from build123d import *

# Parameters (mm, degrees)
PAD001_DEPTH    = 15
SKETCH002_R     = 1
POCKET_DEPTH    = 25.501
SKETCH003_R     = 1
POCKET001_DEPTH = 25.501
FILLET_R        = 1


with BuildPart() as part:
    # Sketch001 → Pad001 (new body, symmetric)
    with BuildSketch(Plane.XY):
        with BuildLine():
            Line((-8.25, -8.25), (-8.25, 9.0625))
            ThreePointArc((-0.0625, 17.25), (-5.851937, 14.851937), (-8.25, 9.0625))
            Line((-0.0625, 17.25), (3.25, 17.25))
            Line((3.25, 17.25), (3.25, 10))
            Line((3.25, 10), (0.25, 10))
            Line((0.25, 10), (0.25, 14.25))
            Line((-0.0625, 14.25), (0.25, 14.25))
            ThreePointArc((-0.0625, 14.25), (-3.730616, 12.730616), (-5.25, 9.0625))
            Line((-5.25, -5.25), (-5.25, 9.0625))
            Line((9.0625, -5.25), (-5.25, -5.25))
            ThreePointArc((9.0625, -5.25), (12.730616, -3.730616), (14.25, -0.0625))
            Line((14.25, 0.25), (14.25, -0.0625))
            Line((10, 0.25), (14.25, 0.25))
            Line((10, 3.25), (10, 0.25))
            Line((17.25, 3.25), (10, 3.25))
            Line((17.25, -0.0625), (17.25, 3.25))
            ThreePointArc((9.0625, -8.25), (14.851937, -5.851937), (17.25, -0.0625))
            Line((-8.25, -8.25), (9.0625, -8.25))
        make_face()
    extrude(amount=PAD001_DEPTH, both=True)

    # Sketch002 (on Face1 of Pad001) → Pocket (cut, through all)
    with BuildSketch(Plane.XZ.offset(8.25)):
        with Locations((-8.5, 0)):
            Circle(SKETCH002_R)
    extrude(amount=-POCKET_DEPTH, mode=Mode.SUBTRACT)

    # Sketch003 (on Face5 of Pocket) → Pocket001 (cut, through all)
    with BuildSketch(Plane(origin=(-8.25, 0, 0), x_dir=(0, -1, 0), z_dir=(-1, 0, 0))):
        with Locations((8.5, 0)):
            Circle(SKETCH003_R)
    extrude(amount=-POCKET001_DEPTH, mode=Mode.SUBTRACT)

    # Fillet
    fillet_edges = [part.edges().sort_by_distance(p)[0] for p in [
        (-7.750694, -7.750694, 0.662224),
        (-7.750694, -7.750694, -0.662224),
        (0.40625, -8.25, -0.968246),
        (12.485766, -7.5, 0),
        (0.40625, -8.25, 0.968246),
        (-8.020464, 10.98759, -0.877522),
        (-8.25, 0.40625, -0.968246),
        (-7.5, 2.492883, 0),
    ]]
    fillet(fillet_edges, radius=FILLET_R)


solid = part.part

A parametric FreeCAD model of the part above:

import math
import FreeCAD as App
import Part
import Sketcher

V = App.Vector


def edges_at(feature, points):
    """Names of the edges that pass closest to the given points."""
    edges = feature.Shape.Edges
    near = lambda p: min(range(len(edges)), key=lambda i: edges[i].distToShape(Part.Vertex(*p))[0])
    return sorted({f"Edge{near(p) + 1}" for p in points})

doc = App.newDocument("Part")
params = doc.addObject("Spreadsheet::Sheet", "Params")
for row, (alias, value) in enumerate([
    ("sketch1_width", "3 mm"),
    ("sketch1_width2", "7.25 mm"),
    ("pad1_length", "30 mm"),
    ("sketch2_diameter", "2 mm"),
    ("sketch3_diameter", "2 mm"),
    ("fillet_radius", "1 mm"),
], start=1):
    params.set(f"A{row}", alias)
    params.set(f"B{row}", "=" + value)
    params.setAlias(f"B{row}", alias)

body = doc.addObject("PartDesign::Body", "Body")

sketch1 = body.newObject("Sketcher::SketchObject", "Sketch")
sketch1.AttachmentSupport = (doc.getObject("XY_Plane"), [""])
sketch1.MapMode = "FlatFace"
sketch1.addGeometry(Part.LineSegment(V(-8.25, 9.06, 0), V(-8.25, -8.25, 0)), False)
sketch1.addGeometry(Part.LineSegment(V(-8.25, -8.25, 0), V(9.06, -8.25, 0)), False)
sketch1.addGeometry(Part.ArcOfCircle(Part.Circle(V(9.06, -0.06, 0), V(0, 0, 1), 8.19), math.radians(-90), math.radians(0)), False)
sketch1.addGeometry(Part.LineSegment(V(17.25, -0.06, 0), V(17.25, 3.25, 0)), False)
sketch1.addGeometry(Part.LineSegment(V(17.25, 3.25, 0), V(10, 3.25, 0)), False)
sketch1.addGeometry(Part.LineSegment(V(10, 3.25, 0), V(10, 0.25, 0)), False)
sketch1.addGeometry(Part.LineSegment(V(10, 0.25, 0), V(14.25, 0.25, 0)), False)
sketch1.addGeometry(Part.LineSegment(V(14.25, 0.25, 0), V(14.25, -0.06, 0)), False)
sketch1.addGeometry(Part.ArcOfCircle(Part.Circle(V(9.06, -0.06, 0), V(0, 0, 1), 5.19), math.radians(-90), math.radians(0)), False)
sketch1.addGeometry(Part.LineSegment(V(9.06, -5.25, 0), V(-5.25, -5.25, 0)), False)
sketch1.addGeometry(Part.LineSegment(V(-5.25, -5.25, 0), V(-5.25, 9.06, 0)), False)
sketch1.addGeometry(Part.ArcOfCircle(Part.Circle(V(-0.06, 9.06, 0), V(0, 0, 1), 5.19), math.radians(90), math.radians(180)), False)
sketch1.addGeometry(Part.LineSegment(V(-0.06, 14.25, 0), V(0.25, 14.25, 0)), False)
sketch1.addGeometry(Part.LineSegment(V(0.25, 14.25, 0), V(0.25, 10, 0)), False)
sketch1.addGeometry(Part.LineSegment(V(0.25, 10, 0), V(3.25, 10, 0)), False)
sketch1.addGeometry(Part.LineSegment(V(3.25, 10, 0), V(3.25, 17.25, 0)), False)
sketch1.addGeometry(Part.LineSegment(V(3.25, 17.25, 0), V(-0.06, 17.25, 0)), False)
sketch1.addGeometry(Part.ArcOfCircle(Part.Circle(V(-0.06, 9.06, 0), V(0, 0, 1), 8.19), math.radians(90), math.radians(180)), False)
sketch1.addConstraint(Sketcher.Constraint("Coincident", 0, 2, 1, 1))
sketch1.addConstraint(Sketcher.Constraint("Tangent", 1, 2, 2, 1))
sketch1.addConstraint(Sketcher.Constraint("Tangent", 2, 2, 3, 1))
sketch1.addConstraint(Sketcher.Constraint("Coincident", 3, 2, 4, 1))
sketch1.addConstraint(Sketcher.Constraint("Coincident", 4, 2, 5, 1))
sketch1.addConstraint(Sketcher.Constraint("Coincident", 5, 2, 6, 1))
sketch1.addConstraint(Sketcher.Constraint("Coincident", 6, 2, 7, 1))
sketch1.addConstraint(Sketcher.Constraint("Tangent", 7, 2, 8, 2))
sketch1.addConstraint(Sketcher.Constraint("Tangent", 8, 1, 9, 1))
sketch1.addConstraint(Sketcher.Constraint("Coincident", 9, 2, 10, 1))
sketch1.addConstraint(Sketcher.Constraint("Tangent", 10, 2, 11, 2))
sketch1.addConstraint(Sketcher.Constraint("Tangent", 11, 1, 12, 1))
sketch1.addConstraint(Sketcher.Constraint("Coincident", 12, 2, 13, 1))
sketch1.addConstraint(Sketcher.Constraint("Coincident", 13, 2, 14, 1))
sketch1.addConstraint(Sketcher.Constraint("Coincident", 14, 2, 15, 1))
sketch1.addConstraint(Sketcher.Constraint("Coincident", 15, 2, 16, 1))
sketch1.addConstraint(Sketcher.Constraint("Tangent", 16, 2, 17, 1))
sketch1.addConstraint(Sketcher.Constraint("Tangent", 17, 2, 0, 1))
sketch1.addConstraint(Sketcher.Constraint("Vertical", 0))
sketch1.addConstraint(Sketcher.Constraint("Horizontal", 1))
sketch1.addConstraint(Sketcher.Constraint("Vertical", 3))
sketch1.addConstraint(Sketcher.Constraint("Horizontal", 4))
sketch1.addConstraint(Sketcher.Constraint("Vertical", 5))
sketch1.addConstraint(Sketcher.Constraint("Horizontal", 6))
sketch1.addConstraint(Sketcher.Constraint("Vertical", 7))
sketch1.addConstraint(Sketcher.Constraint("Horizontal", 9))
sketch1.addConstraint(Sketcher.Constraint("Vertical", 10))
sketch1.addConstraint(Sketcher.Constraint("Horizontal", 12))
sketch1.addConstraint(Sketcher.Constraint("Vertical", 13))
sketch1.addConstraint(Sketcher.Constraint("Horizontal", 14))
sketch1.addConstraint(Sketcher.Constraint("Vertical", 15))
sketch1.addConstraint(Sketcher.Constraint("Horizontal", 16))
sketch1.addConstraint(Sketcher.Constraint("Coincident", 8, 3, 2, 3))
sketch1.addConstraint(Sketcher.Constraint("Coincident", 17, 3, 11, 3))
sketch1.addConstraint(Sketcher.Constraint("Equal", 8, 11))
sketch1.addConstraint(Sketcher.Constraint("Equal", 2, 17))
sketch1.addConstraint(Sketcher.Constraint("Equal", 1, 0))
sketch1.addConstraint(Sketcher.Constraint("Equal", 16, 3))
sketch1.addConstraint(Sketcher.Constraint("Equal", 14, 5))
sketch1.addConstraint(Sketcher.Constraint("Equal", 6, 13))
sketch1.addConstraint(Sketcher.Constraint("DistanceX", 14, 1, 14, 2, 3.0))
sketch1.addConstraint(Sketcher.Constraint("DistanceX", -1, 1, 4, 2, 10.0))
sketch1.addConstraint(Sketcher.Constraint("DistanceY", -1, 1, 13, 2, 10.0))
sketch1.addConstraint(Sketcher.Constraint("DistanceX", 6, 2, 2, 2, 3.0))
sketch1.addConstraint(Sketcher.Constraint("DistanceY", 4, 2, 11, 1, 11.0))
sketch1.addConstraint(Sketcher.Constraint("DistanceX", 4, 2, 4, 1, 7.25))
sketch1.addConstraint(Sketcher.Constraint("Radius", 2, 8.187499))
sketch1.addConstraint(Sketcher.Constraint("DistanceY", 1, 2, 3, 2, 11.5))
sketch1.setExpression("Constraints[40]", "Params.sketch1_width")
sketch1.setExpression("Constraints[45]", "Params.sketch1_width2")
pad1 = body.newObject("PartDesign::Pad", "Pad")
pad1.Profile = sketch1
pad1.setExpression("Length", "Params.pad1_length")
pad1.Midplane = True

sketch2 = body.newObject("Sketcher::SketchObject", "Sketch001")
sketch2.AttachmentSupport = (doc.getObject("XZ_Plane"), [""])
sketch2.MapMode = "FlatFace"
sketch2.AttachmentOffset = App.Placement(V(0, 0, 8.25), App.Rotation())
sketch2.addGeometry(Part.Circle(V(-8.5, 0, 0), V(0, 0, 1), 1), False)
sketch2.addConstraint(Sketcher.Constraint("PointOnObject", 0, 3, -1))
sketch2.addConstraint(Sketcher.Constraint("Diameter", 0, 2.0))
sketch2.addConstraint(Sketcher.Constraint("DistanceX", 0, 3, -1, 1, 8.5))
sketch2.setExpression("Constraints[1]", "Params.sketch2_diameter")
pocket1 = body.newObject("PartDesign::Pocket", "Pocket")
pocket1.Profile = sketch2
pocket1.Type = "ThroughAll"

sketch3 = body.newObject("Sketcher::SketchObject", "Sketch002")
sketch3.AttachmentSupport = (doc.getObject("YZ_Plane"), [""])
sketch3.MapMode = "FlatFace"
sketch3.AttachmentOffset = App.Placement(V(0, 0, -8.25), App.Rotation())
sketch3.addGeometry(Part.Circle(V(-8.5, 0, 0), V(0, 0, 1), 1), False)
sketch3.addConstraint(Sketcher.Constraint("PointOnObject", 0, 3, -1))
sketch3.addConstraint(Sketcher.Constraint("Diameter", 0, 2.0))
sketch3.addConstraint(Sketcher.Constraint("DistanceX", 0, 3, -1, 1, 8.5))
sketch3.setExpression("Constraints[1]", "Params.sketch3_diameter")
pocket2 = body.newObject("PartDesign::Pocket", "Pocket001")
pocket2.Profile = sketch3
pocket2.Type = "ThroughAll"
pocket2.Reversed = True
doc.recompute()

fillet = body.newObject("PartDesign::Fillet", "Fillet")
fillet.Base = (pocket2, edges_at(pocket2, [
    (-7.5, -7.5, 0),
    (-7.5, -7.5, 0),
    (0.406, -8.25, -0.968),
    (12.486, -7.5, 0),
    (0.406, -8.25, 0.968),
    (-7.5, 12.486, 0),
    (-8.25, 0.406, -0.968),
    (-8.25, 0.406, -0.968),
]))
fillet.setExpression("Radius", "Params.fillet_radius")

doc.recompute()
